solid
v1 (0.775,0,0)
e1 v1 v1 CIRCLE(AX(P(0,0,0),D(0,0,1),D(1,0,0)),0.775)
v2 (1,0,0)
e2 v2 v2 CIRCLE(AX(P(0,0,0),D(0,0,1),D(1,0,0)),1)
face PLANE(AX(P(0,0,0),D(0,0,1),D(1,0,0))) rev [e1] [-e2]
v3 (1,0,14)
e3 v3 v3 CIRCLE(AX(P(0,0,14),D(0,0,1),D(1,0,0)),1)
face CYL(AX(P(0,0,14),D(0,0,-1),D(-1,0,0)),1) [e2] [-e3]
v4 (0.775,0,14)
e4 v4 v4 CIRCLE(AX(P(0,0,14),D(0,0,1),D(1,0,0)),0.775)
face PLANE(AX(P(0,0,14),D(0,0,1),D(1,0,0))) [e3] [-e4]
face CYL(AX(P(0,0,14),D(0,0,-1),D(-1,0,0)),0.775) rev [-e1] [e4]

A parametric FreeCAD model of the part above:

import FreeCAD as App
import Part
import Sketcher

V = App.Vector

doc = App.newDocument("Part")
body = doc.addObject("PartDesign::Body", "Body")

# Sketch on XY plane
sketch1 = body.newObject("Sketcher::SketchObject", "Sketch")
sketch1.AttachmentSupport = (doc.getObject("XY_Plane"), [""])
sketch1.MapMode = "FlatFace"
sketch1.addGeometry(Part.Circle(V(0, 0, 0), V(0, 0, 1), 1), False)
sketch1.addGeometry(Part.Circle(V(0, 0, 0), V(0, 0, 1), 0.775), False)
sketch1.addConstraint(Sketcher.Constraint("Coincident", 0, 3, -1, 1))
sketch1.addConstraint(Sketcher.Constraint("Coincident", 1, 3, -1, 1))
sketch1.addConstraint(Sketcher.Constraint("Diameter", 0, 2.0))
sketch1.addConstraint(Sketcher.Constraint("Diameter", 1, 1.55))
pad1 = body.newObject("PartDesign::Pad", "Pad")
pad1.Profile = sketch1
pad1.Length = 14

doc.recompute()
